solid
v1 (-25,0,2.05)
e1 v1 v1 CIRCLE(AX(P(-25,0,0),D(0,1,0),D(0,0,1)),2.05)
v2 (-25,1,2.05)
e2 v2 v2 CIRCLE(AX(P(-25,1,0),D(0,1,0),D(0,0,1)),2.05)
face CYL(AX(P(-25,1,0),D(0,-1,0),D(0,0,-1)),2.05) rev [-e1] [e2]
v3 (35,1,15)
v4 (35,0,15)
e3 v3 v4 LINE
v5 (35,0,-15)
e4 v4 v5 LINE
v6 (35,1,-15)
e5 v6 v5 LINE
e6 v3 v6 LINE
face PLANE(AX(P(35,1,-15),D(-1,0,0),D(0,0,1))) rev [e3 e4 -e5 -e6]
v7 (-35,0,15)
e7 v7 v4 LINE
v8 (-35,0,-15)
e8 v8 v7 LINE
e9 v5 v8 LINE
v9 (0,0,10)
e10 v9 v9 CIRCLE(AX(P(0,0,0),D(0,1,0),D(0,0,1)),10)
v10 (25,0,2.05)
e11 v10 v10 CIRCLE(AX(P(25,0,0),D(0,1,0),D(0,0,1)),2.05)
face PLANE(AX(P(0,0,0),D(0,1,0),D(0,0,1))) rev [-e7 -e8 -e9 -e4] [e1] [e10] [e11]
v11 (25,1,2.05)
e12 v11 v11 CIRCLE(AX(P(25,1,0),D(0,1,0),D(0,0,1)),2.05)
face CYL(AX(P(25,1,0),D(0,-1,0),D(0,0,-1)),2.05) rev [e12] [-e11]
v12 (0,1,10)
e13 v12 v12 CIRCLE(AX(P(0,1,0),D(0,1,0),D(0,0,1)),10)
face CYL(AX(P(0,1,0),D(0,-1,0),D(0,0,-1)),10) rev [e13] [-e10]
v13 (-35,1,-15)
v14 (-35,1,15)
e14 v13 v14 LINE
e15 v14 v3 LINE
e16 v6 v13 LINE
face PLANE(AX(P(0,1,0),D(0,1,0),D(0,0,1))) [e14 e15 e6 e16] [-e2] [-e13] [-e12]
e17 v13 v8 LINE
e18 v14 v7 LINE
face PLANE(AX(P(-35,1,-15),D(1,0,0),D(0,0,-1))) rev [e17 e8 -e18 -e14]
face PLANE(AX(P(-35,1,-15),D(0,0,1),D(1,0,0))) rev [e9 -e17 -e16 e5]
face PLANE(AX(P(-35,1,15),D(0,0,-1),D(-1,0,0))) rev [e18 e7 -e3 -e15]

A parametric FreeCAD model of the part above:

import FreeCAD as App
import Part
import Sketcher

V = App.Vector

doc = App.newDocument("Part")
body = doc.addObject("PartDesign::Body", "Body")

# Sketch on XZ plane
sketch1 = body.newObject("Sketcher::SketchObject", "Sketch")
sketch1.AttachmentSupport = (doc.getObject("XZ_Plane"), [""])
sketch1.MapMode = "FlatFace"
sketch1.addGeometry([
    Part.LineSegment(V(-35, -15, 0), V(-35, 15, 0)),  # 0
    Part.LineSegment(V(-35, 15, 0), V(35, 15, 0)),  # 1
    Part.LineSegment(V(35, 15, 0), V(35, -15, 0)),  # 2
    Part.LineSegment(V(35, -15, 0), V(-35, -15, 0)),  # 3
    Part.Circle(V(-25, 0, 0), V(0, 0, 1), 2),  # 4
    Part.Circle(V(0, 0, 0), V(0, 0, 1), 10),  # 5
    Part.Circle(V(25, 0, 0), V(0, 0, 1), 2),  # 6
], False)
sketch1.addConstraint([
    Sketcher.Constraint("Coincident", 0, 2, 1, 1),
    Sketcher.Constraint("Coincident", 1, 2, 2, 1),
    Sketcher.Constraint("Coincident", 2, 2, 3, 1),
    Sketcher.Constraint("Coincident", 3, 2, 0, 1),
    Sketcher.Constraint("Vertical", 0),
    Sketcher.Constraint("Horizontal", 1),
    Sketcher.Constraint("Vertical", 2),
    Sketcher.Constraint("Horizontal", 3),
    Sketcher.Constraint("Coincident", 5, 3, -1, 1),
    Sketcher.Constraint("Equal", 4, 6),
    Sketcher.Constraint("Symmetric", 4, 3, 6, 3, -1, 1),
    Sketcher.Constraint("Symmetric", 0, 2, 2, 2, -1, 1),
    Sketcher.Constraint("PointOnObject", 4, 3, -1),
    Sketcher.Constraint("Diameter", 5, 20.0),
    Sketcher.Constraint("Diameter", 4, 4.1),
    Sketcher.Constraint("DistanceX", 1, 1, 1, 2, 70.0),
    Sketcher.Constraint("DistanceY", 0, 1, 0, 2, 30.0),
    Sketcher.Constraint("DistanceX", 4, 3, -1, 1, 25.0),
])
pad1 = body.newObject("PartDesign::Pad", "Pad")
pad1.Profile = sketch1
pad1.Length = 1
pad1.Reversed = True

doc.recompute()
